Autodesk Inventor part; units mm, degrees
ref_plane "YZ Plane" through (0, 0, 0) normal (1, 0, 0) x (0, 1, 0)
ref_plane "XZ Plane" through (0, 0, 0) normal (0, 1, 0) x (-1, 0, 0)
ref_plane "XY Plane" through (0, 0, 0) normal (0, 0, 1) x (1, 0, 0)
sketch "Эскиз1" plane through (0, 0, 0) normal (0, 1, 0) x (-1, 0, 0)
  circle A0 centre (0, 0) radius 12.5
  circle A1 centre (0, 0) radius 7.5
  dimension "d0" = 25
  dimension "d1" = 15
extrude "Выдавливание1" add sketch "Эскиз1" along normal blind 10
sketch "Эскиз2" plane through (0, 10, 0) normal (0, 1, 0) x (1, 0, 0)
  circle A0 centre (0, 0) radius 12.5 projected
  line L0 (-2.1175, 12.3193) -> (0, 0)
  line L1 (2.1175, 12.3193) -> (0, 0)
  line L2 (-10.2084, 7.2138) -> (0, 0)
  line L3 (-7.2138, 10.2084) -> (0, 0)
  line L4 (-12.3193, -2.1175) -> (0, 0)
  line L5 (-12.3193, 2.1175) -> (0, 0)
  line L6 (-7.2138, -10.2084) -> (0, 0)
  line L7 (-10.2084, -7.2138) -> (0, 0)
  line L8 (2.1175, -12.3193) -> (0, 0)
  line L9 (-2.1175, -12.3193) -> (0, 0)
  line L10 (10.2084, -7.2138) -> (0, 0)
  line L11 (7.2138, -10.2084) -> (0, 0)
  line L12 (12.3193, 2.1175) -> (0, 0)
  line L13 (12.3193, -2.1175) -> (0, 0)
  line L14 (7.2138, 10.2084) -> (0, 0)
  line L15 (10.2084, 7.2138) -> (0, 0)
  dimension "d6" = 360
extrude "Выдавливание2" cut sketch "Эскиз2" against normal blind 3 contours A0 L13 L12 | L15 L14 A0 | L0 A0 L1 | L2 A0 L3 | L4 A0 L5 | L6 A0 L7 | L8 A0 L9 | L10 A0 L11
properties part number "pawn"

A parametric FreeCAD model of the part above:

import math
import FreeCAD as App
import Part
import Sketcher

V = App.Vector
Q = App.Units.Quantity

doc = App.newDocument("Part")
body = doc.addObject("PartDesign::Body", "Body")

# Sketch on XZ plane
sketch1 = doc.addObject("Sketcher::SketchObject", "Sketch")
body.addObject(sketch1)
sketch1.AttachmentSupport = (doc.XZ_Plane, [""])
sketch1.MapMode = "FlatFace"
sketch1.addGeometry([
    Part.Circle(V(0, 0, 0), V(0, 0, 1), 12),
    Part.Circle(V(0, 0, 0), V(0, 0, 1), 8),
], False)
sketch1.addConstraint([
    Sketcher.Constraint("Coincident", 0, 3, -1, 1),
    Sketcher.Constraint("Coincident", 1, 3, -1, 1),
    Sketcher.Constraint("Diameter", 0, Q("25 mm")),
    Sketcher.Constraint("Diameter", 1, Q("15 mm")),
])
pad1 = doc.addObject("PartDesign::Pad", "Pad")
body.addObject(pad1)
pad1.Profile = sketch1
pad1.Length = 10
pad1.Reversed = True

# Sketch on XZ plane
sketch2 = doc.addObject("Sketcher::SketchObject", "Sketch001")
body.addObject(sketch2)
sketch2.AttachmentSupport = (doc.XZ_Plane, [""])
sketch2.MapMode = "FlatFace"
sketch2.AttachmentOffset = App.Placement(V(0, 0, -10), App.Rotation())
sketch2.addGeometry([
    Part.ArcOfCircle(Part.Circle(V(0, 0, 0), V(0, 0, 1), 12.5), math.radians(-9.75), math.radians(9.75)),  # 0
    Part.LineSegment(V(12.3, -2.1, 0), V(0, 0, 0)),  # 1
    Part.LineSegment(V(0, 0, 0), V(12.3, 2.1, 0)),  # 2
    Part.LineSegment(V(0, 0, 0), V(10.2, -7.2, 0)),  # 3
    Part.ArcOfCircle(Part.Circle(V(0, 0, 0), V(0, 0, 1), 12.5), math.radians(-54.75), math.radians(-35.25)),  # 4
    Part.LineSegment(V(7.2, -10.2, 0), V(0, 0, 0)),  # 5
    Part.LineSegment(V(-2.1, -12.3, 0), V(0, 0, 0)),  # 6
    Part.LineSegment(V(0, 0, 0), V(2.1, -12.3, 0)),  # 7
    Part.ArcOfCircle(Part.Circle(V(0, 0, 0), V(0, 0, 1), 12.5), math.radians(-99.75), math.radians(-80.25)),  # 8
    Part.LineSegment(V(-10.2, -7.2, 0), V(0, 0, 0)),  # 9
    Part.LineSegment(V(0, 0, 0), V(-7.2, -10.2, 0)),  # 10
    Part.ArcOfCircle(Part.Circle(V(0, 0, 0), V(0, 0, 1), 12.5), math.radians(-144.75), math.radians(-125.25)),  # 11
    Part.LineSegment(V(-12.3, 2.1, 0), V(0, 0, 0)),  # 12
    Part.LineSegment(V(0, 0, 0), V(-12.3, -2.1, 0)),  # 13
    Part.ArcOfCircle(Part.Circle(V(0, 0, 0), V(0, 0, 1), 12.5), math.radians(170.25), math.radians(189.75)),  # 14
    Part.LineSegment(V(-7.2, 10.2, 0), V(0, 0, 0)),  # 15
    Part.LineSegment(V(0, 0, 0), V(-10.2, 7.2, 0)),  # 16
    Part.ArcOfCircle(Part.Circle(V(0, 0, 0), V(0, 0, 1), 12.5), math.radians(125.25), math.radians(144.75)),  # 17
    Part.LineSegment(V(2.1, 12.3, 0), V(0, 0, 0)),  # 18
    Part.LineSegment(V(0, 0, 0), V(-2.1, 12.3, 0)),  # 19
    Part.ArcOfCircle(Part.Circle(V(0, 0, 0), V(0, 0, 1), 12.5), math.radians(80.25), math.radians(99.75)),  # 20
    Part.LineSegment(V(10.2, 7.2, 0), V(0, 0, 0)),  # 21
    Part.LineSegment(V(0, 0, 0), V(7.2, 10.2, 0)),  # 22
    Part.ArcOfCircle(Part.Circle(V(0, 0, 0), V(0, 0, 1), 12.5), math.radians(35.25), math.radians(54.75)),  # 23
], False)
sketch2.addConstraint([
    Sketcher.Constraint("Coincident", 0, 1, 1, 1),
    Sketcher.Constraint("Coincident", 1, 2, 2, 1),
    Sketcher.Constraint("Coincident", 2, 2, 0, 2),
    Sketcher.Constraint("Coincident", 3, 2, 4, 2),
    Sketcher.Constraint("Coincident", 4, 1, 5, 1),
    Sketcher.Constraint("Coincident", 5, 2, 3, 1),
    Sketcher.Constraint("Coincident", 6, 2, 7, 1),
    Sketcher.Constraint("Coincident", 7, 2, 8, 2),
    Sketcher.Constraint("Coincident", 8, 1, 6, 1),
    Sketcher.Constraint("Coincident", 9, 2, 10, 1),
    Sketcher.Constraint("Coincident", 10, 2, 11, 2),
    Sketcher.Constraint("Coincident", 11, 1, 9, 1),
    Sketcher.Constraint("Coincident", 12, 2, 13, 1),
    Sketcher.Constraint("Coincident", 13, 2, 14, 2),
    Sketcher.Constraint("Coincident", 14, 1, 12, 1),
    Sketcher.Constraint("Coincident", 15, 2, 16, 1),
    Sketcher.Constraint("Coincident", 16, 2, 17, 2),
    Sketcher.Constraint("Coincident", 17, 1, 15, 1),
    Sketcher.Constraint("Coincident", 18, 2, 19, 1),
    Sketcher.Constraint("Coincident", 19, 2, 20, 2),
    Sketcher.Constraint("Coincident", 20, 1, 18, 1),
    Sketcher.Constraint("Coincident", 21, 2, 22, 1),
    Sketcher.Constraint("Coincident", 22, 2, 23, 2),
    Sketcher.Constraint("Coincident", 23, 1, 21, 1),
    Sketcher.Constraint("Coincident", 0, 3, -1, 1),
    Sketcher.Constraint("Coincident", 4, 3, -1, 1),
    Sketcher.Constraint("Coincident", 8, 3, -1, 1),
    Sketcher.Constraint("Coincident", 11, 3, -1, 1),
    Sketcher.Constraint("Coincident", 14, 3, -1, 1),
    Sketcher.Constraint("Coincident", 17, 3, -1, 1),
    Sketcher.Constraint("Coincident", 20, 3, -1, 1),
    Sketcher.Constraint("Coincident", 23, 3, -1, 1),
    Sketcher.Constraint("Coincident", 1, 2, -1, 1),
    Sketcher.Constraint("Coincident", 5, 2, -1, 1),
    Sketcher.Constraint("Coincident", 6, 2, -1, 1),
    Sketcher.Constraint("Coincident", 9, 2, -1, 1),
    Sketcher.Constraint("Coincident", 12, 2, -1, 1),
    Sketcher.Constraint("Coincident", 15, 2, -1, 1),
    Sketcher.Constraint("Coincident", 18, 2, -1, 1),
    Sketcher.Constraint("Coincident", 21, 2, -1, 1),
    Sketcher.Constraint("Equal", 0, 4),
    Sketcher.Constraint("Equal", 4, 8),
    Sketcher.Constraint("Equal", 8, 11),
    Sketcher.Constraint("Equal", 11, 14),
    Sketcher.Constraint("Equal", 14, 17),
    Sketcher.Constraint("Equal", 17, 20),
    Sketcher.Constraint("Equal", 20, 23),
    Sketcher.Constraint("Perpendicular", 1, 6),
    Sketcher.Constraint("Perpendicular", 2, 7),
    Sketcher.Constraint("Perpendicular", 5, 9),
    Sketcher.Constraint("Perpendicular", 3, 10),
    Sketcher.Constraint("Perpendicular", 6, 12),
    Sketcher.Constraint("Perpendicular", 7, 13),
    Sketcher.Constraint("Perpendicular", 9, 15),
    Sketcher.Constraint("Perpendicular", 10, 16),
    Sketcher.Constraint("Perpendicular", 12, 18),
    Sketcher.Constraint("Perpendicular", 13, 19),
    Sketcher.Constraint("Perpendicular", 15, 21),
    Sketcher.Constraint("Perpendicular", 16, 22),
    Sketcher.Constraint("Horizontal", 7, 2, 8, 1),
    Sketcher.Constraint("Horizontal", 4, 1, 10, 2),
    Sketcher.Constraint("Radius", 0, Q("12.5 mm")),
    Sketcher.Constraint("DistanceY", 0, 1, 2, 2, Q("4.235 mm")),
    Sketcher.Constraint("DistanceX", 3, 2, 0, 1, Q("2.111 mm")),
])
pocket1 = doc.addObject("PartDesign::Pocket", "Pocket")
body.addObject(pocket1)
pocket1.Profile = sketch2
pocket1.Length = 3
pocket1.Reversed = True

doc.recompute()
